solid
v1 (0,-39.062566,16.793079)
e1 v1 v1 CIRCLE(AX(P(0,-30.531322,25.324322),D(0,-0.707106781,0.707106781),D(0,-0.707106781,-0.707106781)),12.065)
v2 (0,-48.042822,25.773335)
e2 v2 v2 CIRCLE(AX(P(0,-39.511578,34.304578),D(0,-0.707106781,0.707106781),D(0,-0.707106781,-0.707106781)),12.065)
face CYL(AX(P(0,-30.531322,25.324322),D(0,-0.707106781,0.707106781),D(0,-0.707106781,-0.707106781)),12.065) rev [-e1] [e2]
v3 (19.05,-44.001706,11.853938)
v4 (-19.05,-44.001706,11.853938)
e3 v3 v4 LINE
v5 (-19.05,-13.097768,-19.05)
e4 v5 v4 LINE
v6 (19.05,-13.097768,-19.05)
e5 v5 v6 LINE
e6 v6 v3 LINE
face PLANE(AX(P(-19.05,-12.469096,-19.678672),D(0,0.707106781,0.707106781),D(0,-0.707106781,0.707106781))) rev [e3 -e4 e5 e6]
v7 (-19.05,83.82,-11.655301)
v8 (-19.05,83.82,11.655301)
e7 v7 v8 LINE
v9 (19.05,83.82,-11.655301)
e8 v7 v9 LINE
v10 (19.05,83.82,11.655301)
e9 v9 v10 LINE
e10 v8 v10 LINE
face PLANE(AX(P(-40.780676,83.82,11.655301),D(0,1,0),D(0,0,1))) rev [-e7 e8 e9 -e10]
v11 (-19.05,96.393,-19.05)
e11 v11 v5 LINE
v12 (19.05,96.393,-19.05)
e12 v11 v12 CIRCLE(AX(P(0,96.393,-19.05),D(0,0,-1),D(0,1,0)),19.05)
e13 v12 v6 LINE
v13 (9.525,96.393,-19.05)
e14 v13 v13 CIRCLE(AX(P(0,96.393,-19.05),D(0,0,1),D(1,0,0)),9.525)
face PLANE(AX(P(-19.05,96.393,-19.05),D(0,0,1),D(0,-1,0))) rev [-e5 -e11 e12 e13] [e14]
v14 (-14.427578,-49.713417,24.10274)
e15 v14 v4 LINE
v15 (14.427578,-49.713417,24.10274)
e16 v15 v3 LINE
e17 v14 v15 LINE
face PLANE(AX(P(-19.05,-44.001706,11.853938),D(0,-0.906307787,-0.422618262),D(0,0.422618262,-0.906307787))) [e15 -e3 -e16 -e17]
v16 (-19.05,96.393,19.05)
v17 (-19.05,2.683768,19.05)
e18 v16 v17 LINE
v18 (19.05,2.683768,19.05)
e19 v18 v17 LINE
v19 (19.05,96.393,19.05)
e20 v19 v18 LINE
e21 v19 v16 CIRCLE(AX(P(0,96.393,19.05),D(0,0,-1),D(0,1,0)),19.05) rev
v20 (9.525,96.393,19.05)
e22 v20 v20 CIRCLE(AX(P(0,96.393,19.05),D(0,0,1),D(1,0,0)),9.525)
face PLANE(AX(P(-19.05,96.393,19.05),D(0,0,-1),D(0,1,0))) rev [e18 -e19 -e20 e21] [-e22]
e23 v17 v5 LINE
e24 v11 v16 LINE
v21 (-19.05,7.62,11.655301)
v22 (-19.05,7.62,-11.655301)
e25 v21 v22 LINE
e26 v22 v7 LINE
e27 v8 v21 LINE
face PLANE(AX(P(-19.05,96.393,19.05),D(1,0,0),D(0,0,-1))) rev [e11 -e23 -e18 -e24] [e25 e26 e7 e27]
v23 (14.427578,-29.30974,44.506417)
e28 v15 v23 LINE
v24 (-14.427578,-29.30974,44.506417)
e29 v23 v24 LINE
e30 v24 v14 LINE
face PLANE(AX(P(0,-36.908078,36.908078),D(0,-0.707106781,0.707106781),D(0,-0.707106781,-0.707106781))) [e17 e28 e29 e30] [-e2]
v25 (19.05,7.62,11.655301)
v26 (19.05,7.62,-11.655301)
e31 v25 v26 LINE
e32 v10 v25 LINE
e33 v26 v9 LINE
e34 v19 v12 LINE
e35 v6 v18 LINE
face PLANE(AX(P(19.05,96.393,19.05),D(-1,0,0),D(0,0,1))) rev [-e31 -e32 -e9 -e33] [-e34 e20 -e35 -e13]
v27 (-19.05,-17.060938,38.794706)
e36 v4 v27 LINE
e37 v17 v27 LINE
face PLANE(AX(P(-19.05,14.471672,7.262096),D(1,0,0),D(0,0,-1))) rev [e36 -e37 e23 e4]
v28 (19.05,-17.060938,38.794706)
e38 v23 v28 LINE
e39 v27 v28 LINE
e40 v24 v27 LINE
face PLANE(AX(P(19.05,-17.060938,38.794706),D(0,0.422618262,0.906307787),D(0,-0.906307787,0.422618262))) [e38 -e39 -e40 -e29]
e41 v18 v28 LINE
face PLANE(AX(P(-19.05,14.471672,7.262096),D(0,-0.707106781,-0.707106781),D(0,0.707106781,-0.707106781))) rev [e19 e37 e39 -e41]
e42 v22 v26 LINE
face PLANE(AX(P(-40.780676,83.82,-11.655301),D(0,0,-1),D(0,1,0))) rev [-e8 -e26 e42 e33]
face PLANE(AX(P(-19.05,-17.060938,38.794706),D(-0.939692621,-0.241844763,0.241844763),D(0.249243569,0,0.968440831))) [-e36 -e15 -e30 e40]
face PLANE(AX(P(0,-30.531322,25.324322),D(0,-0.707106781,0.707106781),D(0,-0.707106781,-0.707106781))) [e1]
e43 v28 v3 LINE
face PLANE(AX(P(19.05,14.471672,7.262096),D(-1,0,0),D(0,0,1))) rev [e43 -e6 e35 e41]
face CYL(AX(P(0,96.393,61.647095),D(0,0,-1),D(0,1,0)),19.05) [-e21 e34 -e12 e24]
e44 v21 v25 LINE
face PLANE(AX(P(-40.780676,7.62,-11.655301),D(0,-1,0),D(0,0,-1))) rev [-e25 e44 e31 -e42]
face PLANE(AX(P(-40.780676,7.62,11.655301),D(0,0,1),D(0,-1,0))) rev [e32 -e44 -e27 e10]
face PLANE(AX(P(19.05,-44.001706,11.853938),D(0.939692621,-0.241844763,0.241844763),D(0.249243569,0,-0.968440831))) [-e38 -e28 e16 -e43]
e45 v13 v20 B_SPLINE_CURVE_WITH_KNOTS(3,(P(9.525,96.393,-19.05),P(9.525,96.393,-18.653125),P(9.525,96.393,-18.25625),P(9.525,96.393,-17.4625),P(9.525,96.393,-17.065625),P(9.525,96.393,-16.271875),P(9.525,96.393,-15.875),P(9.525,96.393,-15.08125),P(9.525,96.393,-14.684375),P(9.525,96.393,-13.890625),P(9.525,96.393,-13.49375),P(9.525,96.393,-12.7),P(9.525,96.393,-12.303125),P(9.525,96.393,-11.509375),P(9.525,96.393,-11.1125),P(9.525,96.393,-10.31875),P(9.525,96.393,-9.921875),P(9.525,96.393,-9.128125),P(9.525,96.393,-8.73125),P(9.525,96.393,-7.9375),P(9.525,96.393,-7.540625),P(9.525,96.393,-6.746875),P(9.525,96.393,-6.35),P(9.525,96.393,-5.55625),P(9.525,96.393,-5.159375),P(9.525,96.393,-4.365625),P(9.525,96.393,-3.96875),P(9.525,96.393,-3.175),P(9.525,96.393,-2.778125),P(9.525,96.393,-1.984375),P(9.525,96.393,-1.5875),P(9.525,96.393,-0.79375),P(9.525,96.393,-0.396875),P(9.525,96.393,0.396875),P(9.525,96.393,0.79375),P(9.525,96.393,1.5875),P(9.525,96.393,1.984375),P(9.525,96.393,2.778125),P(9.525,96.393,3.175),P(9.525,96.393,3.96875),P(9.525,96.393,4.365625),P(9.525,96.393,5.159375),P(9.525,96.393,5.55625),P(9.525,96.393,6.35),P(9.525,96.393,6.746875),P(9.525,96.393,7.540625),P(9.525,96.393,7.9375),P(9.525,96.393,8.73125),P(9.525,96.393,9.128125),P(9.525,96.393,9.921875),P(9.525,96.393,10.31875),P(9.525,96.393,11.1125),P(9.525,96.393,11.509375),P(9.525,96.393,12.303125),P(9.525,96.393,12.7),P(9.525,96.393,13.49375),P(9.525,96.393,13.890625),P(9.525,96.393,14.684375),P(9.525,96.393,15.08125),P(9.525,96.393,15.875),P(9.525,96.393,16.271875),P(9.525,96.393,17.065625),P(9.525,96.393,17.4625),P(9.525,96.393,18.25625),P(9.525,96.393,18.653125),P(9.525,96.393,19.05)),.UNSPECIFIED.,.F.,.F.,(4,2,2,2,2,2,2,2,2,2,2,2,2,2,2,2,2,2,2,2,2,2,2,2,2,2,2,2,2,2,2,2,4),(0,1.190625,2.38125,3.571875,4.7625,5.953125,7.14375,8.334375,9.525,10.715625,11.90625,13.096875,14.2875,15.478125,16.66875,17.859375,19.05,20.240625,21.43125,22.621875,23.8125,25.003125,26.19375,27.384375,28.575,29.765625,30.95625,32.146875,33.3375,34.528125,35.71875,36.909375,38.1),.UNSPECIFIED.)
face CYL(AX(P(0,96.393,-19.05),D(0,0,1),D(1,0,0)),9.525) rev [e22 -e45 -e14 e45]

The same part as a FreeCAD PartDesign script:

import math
import FreeCAD as App
import Part
import Sketcher
Q = App.Units.Quantity

doc = App.newDocument("Part")
body = doc.addObject("PartDesign::Body", "Body")

# Sketch on XZ plane
sketch1 = body.newObject("Sketcher::SketchObject", "Sketch")
sketch1.AttachmentSupport = (doc.getObject("XZ_Plane"), [""])
sketch1.MapMode = "FlatFace"
sketch1.AttachmentOffset = App.Placement(App.Vector(0, 0, -3.795 * 25.4), App.Rotation())
sketch1.addGeometry(Part.LineSegment(App.Vector(-19, -19, 0), App.Vector(-19, 19, 0)), False)
sketch1.addGeometry(Part.LineSegment(App.Vector(-19, 19, 0), App.Vector(19, 19, 0)), False)
sketch1.addGeometry(Part.LineSegment(App.Vector(19, 19, 0), App.Vector(19, -19, 0)), False)
sketch1.addGeometry(Part.LineSegment(App.Vector(19, -19, 0), App.Vector(-19, -19, 0)), False)
sketch1.addConstraint(Sketcher.Constraint("Coincident", 0, 2, 1, 1))
sketch1.addConstraint(Sketcher.Constraint("Coincident", 1, 2, 2, 1))
sketch1.addConstraint(Sketcher.Constraint("Coincident", 2, 2, 3, 1))
sketch1.addConstraint(Sketcher.Constraint("Coincident", 3, 2, 0, 1))
sketch1.addConstraint(Sketcher.Constraint("Vertical", 0))
sketch1.addConstraint(Sketcher.Constraint("Horizontal", 1))
sketch1.addConstraint(Sketcher.Constraint("Vertical", 2))
sketch1.addConstraint(Sketcher.Constraint("Horizontal", 3))
sketch1.addConstraint(Sketcher.Constraint("Symmetric", 0, 2, 2, 2, -1, 1))
sketch1.addConstraint(Sketcher.Constraint("Equal", 3, 0))
sketch1.addConstraint(Sketcher.Constraint("DistanceX", 1, 1, 1, 2, Q("1.5 in")))

# Sketch on YZ plane
sketch2 = body.newObject("Sketcher::SketchObject", "Sketch001")
sketch2.AttachmentSupport = (doc.getObject("YZ_Plane"), [""])
sketch2.MapMode = "FlatFace"
sketch2.addGeometry(Part.LineSegment(App.Vector(96, 0, 0), App.Vector(-5, 0, 0)), False)
sketch2.addGeometry(Part.LineSegment(App.Vector(-5, 0, 0), App.Vector(-31, 25, 0)), False)
sketch2.addConstraint(Sketcher.Constraint("Coincident", 0, 2, 1, 1))
sketch2.addConstraint(Sketcher.Constraint("Horizontal", 0))
sketch2.addConstraint(Sketcher.Constraint("PointOnObject", 0, 1, -1))
sketch2.addConstraint(Sketcher.Constraint("DistanceX", 0, 2, 0, 1, Q("4 in")))
sketch2.addConstraint(Sketcher.Constraint("Angle", 1, Q("135 deg")))
sketch2.addConstraint(Sketcher.Constraint("Distance", 1, Q("1.41 in")))
sketch2.addConstraint(Sketcher.Constraint("DistanceX", -1, 1, 0, 1, Q("3.795 in")))
doc.recompute()

additivepipe = body.newObject("PartDesign::AdditivePipe", "AdditivePipe")
additivepipe.Profile = sketch1
additivepipe.Spine = (sketch2, ["Edge1", "Edge2"])
additivepipe.Transition = "Right corner"

# Sketch on an angled plane
sketch3 = body.newObject("Sketcher::SketchObject", "Sketch002")
sketch3.Placement = App.Placement(App.Vector(0, -27.927822, 27.927822), App.Rotation(App.Vector(1, 0, 0), App.Vector(0, 0.707106781, 0.707106781), App.Vector(0, -0.707106781, 0.707106781), "ZXY"))
sketch3.addGeometry(Part.LineSegment(App.Vector(-19, 15, 0), App.Vector(-19, -23, 0)), False)
sketch3.addGeometry(Part.LineSegment(App.Vector(-19, -23, 0), App.Vector(19, -23, 0)), False)
sketch3.addGeometry(Part.LineSegment(App.Vector(19, -23, 0), App.Vector(19, 15, 0)), False)
sketch3.addGeometry(Part.LineSegment(App.Vector(19, 15, 0), App.Vector(-19, 15, 0)), False)
sketch3.addConstraint(Sketcher.Constraint("Coincident", 0, 2, 1, 1))
sketch3.addConstraint(Sketcher.Constraint("Coincident", 1, 2, 2, 1))
sketch3.addConstraint(Sketcher.Constraint("Coincident", 2, 2, 3, 1))
sketch3.addConstraint(Sketcher.Constraint("Coincident", 3, 2, 0, 1))
sketch3.addConstraint(Sketcher.Constraint("Vertical", 0))
sketch3.addConstraint(Sketcher.Constraint("Horizontal", 1))
sketch3.addConstraint(Sketcher.Constraint("Vertical", 2))
sketch3.addConstraint(Sketcher.Constraint("Horizontal", 3))
sketch3.addConstraint(Sketcher.Constraint("Equal", 3, 0))
sketch3.addConstraint(Sketcher.Constraint("DistanceX", 1, 1, 1, 2, Q("1.5 in")))
sketch3.addConstraint(Sketcher.Constraint("DistanceX", 0, 2, -1, 1, Q("0.75 in")))
sketch3.addConstraint(Sketcher.Constraint("DistanceY", 0, 2, -1, 1, Q("22.731905 mm")))
pad1 = body.newObject("PartDesign::Pad", "Pad")
pad1.Profile = sketch3
pad1.Length = Q("0.5 in")
pad1.TaperAngle = -20

# Sketch on XY plane
sketch4 = body.newObject("Sketcher::SketchObject", "Sketch003")
sketch4.AttachmentSupport = (doc.getObject("XY_Plane"), [""])
sketch4.MapMode = "FlatFace"
sketch4.AttachmentOffset = App.Placement(App.Vector(0, 0, -0.75 * 25.4), App.Rotation())
sketch4.addGeometry(Part.LineSegment(App.Vector(19, 96, 0), App.Vector(-19, 96, 0)), False)
sketch4.addGeometry(Part.ArcOfCircle(Part.Circle(App.Vector(0, 96, 0), App.Vector(0, 0, 1), 19), math.radians(0), math.radians(180)), False)
sketch4.addConstraint(Sketcher.Constraint("Coincident", 0, 1, 1, 1))
sketch4.addConstraint(Sketcher.Constraint("Coincident", 1, 2, 0, 2))
sketch4.addConstraint(Sketcher.Constraint("Horizontal", 0))
sketch4.addConstraint(Sketcher.Constraint("PointOnObject", 1, 3, -2))
sketch4.addConstraint(Sketcher.Constraint("Horizontal", 1, 3, 0, 1))
sketch4.addConstraint(Sketcher.Constraint("Radius", 1, Q("0.75 in")))
sketch4.addConstraint(Sketcher.Constraint("DistanceY", -1, 1, 1, 3, Q("3.795 in")))
pad2 = body.newObject("PartDesign::Pad", "Pad001")
pad2.Profile = sketch4
pad2.Length = Q("1.5 in")

# Sketch on XY plane
sketch5 = body.newObject("Sketcher::SketchObject", "Sketch004")
sketch5.AttachmentSupport = (doc.getObject("XY_Plane"), [""])
sketch5.MapMode = "FlatFace"
sketch5.AttachmentOffset = App.Placement(App.Vector(0, 0, 0.75 * 25.4), App.Rotation())
sketch5.addGeometry(Part.Circle(App.Vector(0, 96, 0), App.Vector(0, 0, 1), 10), False)
sketch5.addConstraint(Sketcher.Constraint("PointOnObject", 0, 3, -2))
sketch5.addConstraint(Sketcher.Constraint("Diameter", 0, Q("0.75 in")))
sketch5.addConstraint(Sketcher.Constraint("DistanceY", -1, 1, 0, 3, Q("3.795 in")))
pocket1 = body.newObject("PartDesign::Pocket", "Pocket")
pocket1.Profile = sketch5
pocket1.Length = Q("1.5 in")

# Sketch on an angled plane
sketch6 = body.newObject("Sketcher::SketchObject", "Sketch005")
sketch6.Placement = App.Placement(App.Vector(0, -36.908078, 36.908078), App.Rotation(App.Vector(1, 0, 0), App.Vector(0, 0.707106781, 0.707106781), App.Vector(0, -0.707106781, 0.707106781), "ZXY"))
sketch6.addGeometry(Part.Circle(App.Vector(0, -4, 0), App.Vector(0, 0, 1), 12), False)
sketch6.addConstraint(Sketcher.Constraint("PointOnObject", 0, 3, -2))
sketch6.addConstraint(Sketcher.Constraint("Diameter", 0, Q("0.95 in")))
sketch6.addConstraint(Sketcher.Constraint("DistanceY", 0, 3, -1, 1, Q("3.681905 mm")))
pocket2 = body.newObject("PartDesign::Pocket", "Pocket001")
pocket2.Profile = sketch6
pocket2.Length = Q("0.5 in")

# Sketch on YZ plane
sketch7 = body.newObject("Sketcher::SketchObject", "Sketch006")
sketch7.AttachmentSupport = (doc.getObject("YZ_Plane"), [""])
sketch7.MapMode = "FlatFace"
sketch7.AttachmentOffset = App.Placement(App.Vector(0, 0, 0.75 * 25.4), App.Rotation())
sketch7.addGeometry(Part.LineSegment(App.Vector(84, 12, 0), App.Vector(8, 12, 0)), False)
sketch7.addGeometry(Part.LineSegment(App.Vector(8, 12, 0), App.Vector(8, -12, 0)), False)
sketch7.addGeometry(Part.LineSegment(App.Vector(8, -12, 0), App.Vector(84, -12, 0)), False)
sketch7.addGeometry(Part.LineSegment(App.Vector(84, -12, 0), App.Vector(84, 12, 0)), False)
sketch7.addConstraint(Sketcher.Constraint("Coincident", 0, 2, 1, 1))
sketch7.addConstraint(Sketcher.Constraint("Coincident", 1, 2, 2, 1))
sketch7.addConstraint(Sketcher.Constraint("Coincident", 2, 2, 3, 1))
sketch7.addConstraint(Sketcher.Constraint("Coincident", 3, 2, 0, 1))
sketch7.addConstraint(Sketcher.Constraint("Horizontal", 0))
sketch7.addConstraint(Sketcher.Constraint("Vertical", 1))
sketch7.addConstraint(Sketcher.Constraint("Horizontal", 2))
sketch7.addConstraint(Sketcher.Constraint("Vertical", 3))
sketch7.addConstraint(Sketcher.Constraint("DistanceX", 0, 2, 0, 1, Q("3 in")))
sketch7.addConstraint(Sketcher.Constraint("DistanceX", -1, 1, 0, 2, Q("0.3 in")))
sketch7.addConstraint(Sketcher.Constraint("DistanceY", 1, 2, 1, 1, Q("23.310601 mm")))
sketch7.addConstraint(Sketcher.Constraint("DistanceY", -1, 1, 0, 2, Q("11.655301 mm")))
pocket3 = body.newObject("PartDesign::Pocket", "Pocket002")
pocket3.Profile = sketch7
pocket3.Length = 59.830676

doc.recompute()
